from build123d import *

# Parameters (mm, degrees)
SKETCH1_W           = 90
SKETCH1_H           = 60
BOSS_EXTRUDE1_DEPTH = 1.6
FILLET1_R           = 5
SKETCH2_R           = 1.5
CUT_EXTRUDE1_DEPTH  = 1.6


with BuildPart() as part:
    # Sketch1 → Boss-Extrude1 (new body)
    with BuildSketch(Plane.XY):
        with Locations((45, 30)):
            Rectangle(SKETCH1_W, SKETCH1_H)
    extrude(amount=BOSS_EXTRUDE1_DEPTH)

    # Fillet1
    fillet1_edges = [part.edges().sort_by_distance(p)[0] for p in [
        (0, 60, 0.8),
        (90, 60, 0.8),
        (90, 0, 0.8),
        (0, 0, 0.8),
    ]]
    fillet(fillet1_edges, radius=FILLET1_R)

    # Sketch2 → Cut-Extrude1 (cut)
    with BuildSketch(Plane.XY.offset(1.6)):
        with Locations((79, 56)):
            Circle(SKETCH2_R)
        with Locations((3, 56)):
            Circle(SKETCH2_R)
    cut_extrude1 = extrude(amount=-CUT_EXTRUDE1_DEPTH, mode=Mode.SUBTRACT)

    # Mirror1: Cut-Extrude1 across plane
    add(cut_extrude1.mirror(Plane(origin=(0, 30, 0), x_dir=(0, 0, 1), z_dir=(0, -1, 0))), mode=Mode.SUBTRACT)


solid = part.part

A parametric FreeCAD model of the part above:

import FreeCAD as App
import Part
import Sketcher
from FreeCAD import Vector


def edges_at(feature, points):
    """Names of the edges that pass closest to the given points."""
    edges = feature.Shape.Edges
    near = lambda p: min(range(len(edges)), key=lambda i: edges[i].distToShape(Part.Vertex(*p))[0])
    return sorted({f"Edge{near(p) + 1}" for p in points})


def add_polygon(sketch, points):
    """Adds a closed chain of lines whose ends are joined by coincident constraints."""
    first, n = sketch.GeometryCount, len(points)
    for a, b in zip(points, points[1:] + points[:1]):
        sketch.addGeometry(Part.LineSegment(App.Vector(*a, 0), App.Vector(*b, 0)), False)
    for i in range(n):
        sketch.addConstraint(Sketcher.Constraint("Coincident", first + i, 2, first + (i + 1) % n, 1))

doc = App.newDocument("Part")
body = doc.addObject("PartDesign::Body", "Body")

# Sketch on XY plane
sketch1 = body.newObject("Sketcher::SketchObject", "Sketch")
sketch1.AttachmentSupport = (doc.getObject("XY_Plane"), [""])
sketch1.MapMode = "FlatFace"
add_polygon(sketch1, [(0, 60), (0, 0), (90, 0), (90, 60)])  # lines 0-3
sketch1.addConstraint([
    Sketcher.Constraint("Vertical", 0),
    Sketcher.Constraint("Horizontal", 1),
    Sketcher.Constraint("Vertical", 2),
    Sketcher.Constraint("Horizontal", 3),
    Sketcher.Constraint("Coincident", 0, 2, -1, 1),
    Sketcher.Constraint("DistanceX", 1, 1, 1, 2, 90.0),
    Sketcher.Constraint("DistanceY", 0, 2, 0, 1, 60.0),
])
pad1 = body.newObject("PartDesign::Pad", "Pad")
pad1.Profile = sketch1
pad1.Length = 1.6
doc.recompute()

fillet = body.newObject("PartDesign::Fillet", "Fillet")
fillet.Base = (pad1, edges_at(pad1, [
    (0, 60, 0.8),
    (90, 60, 0.8),
    (90, 0, 0.8),
    (0, 0, 0.8),
]))
fillet.Radius = 5

# Sketch on XY plane
sketch2 = body.newObject("Sketcher::SketchObject", "Sketch001")
sketch2.AttachmentSupport = (doc.getObject("XY_Plane"), [""])
sketch2.MapMode = "FlatFace"
sketch2.AttachmentOffset = App.Placement(Vector(0, 0, 1.6), App.Rotation())
sketch2.addGeometry([
    Part.Circle(Vector(79, 56, 0), Vector(0, 0, 1), 1.5),
    Part.Circle(Vector(3, 56, 0), Vector(0, 0, 1), 1.5),
], False)
sketch2.addConstraint([
    Sketcher.Constraint("Equal", 0, 1),
    Sketcher.Constraint("Horizontal", 0, 3, 1, 3),
    Sketcher.Constraint("Diameter", 0, 3.0),
    Sketcher.Constraint("DistanceX", -1, 1, 0, 3, 79.0),
    Sketcher.Constraint("DistanceY", -1, 1, 0, 3, 56.0),
    Sketcher.Constraint("DistanceX", -1, 1, 1, 3, 3.0),
])
pocket1 = body.newObject("PartDesign::Pocket", "Pocket")
pocket1.Profile = sketch2
pocket1.Length = 1.6
doc.recompute()

datumplane = body.newObject("PartDesign::Plane", "DatumPlane")
datumplane.AttachmentSupport = (doc.getObject("XZ_Plane"), [""])
datumplane.MapMode = "FlatFace"
datumplane.AttachmentOffset = App.Placement(Vector(0, 0, -30), App.Rotation())
mirrored = body.newObject("PartDesign::Mirrored", "Mirrored")
mirrored.Originals = [pocket1]
mirrored.MirrorPlane = (datumplane, [""])
body.Tip = mirrored

doc.recompute()
